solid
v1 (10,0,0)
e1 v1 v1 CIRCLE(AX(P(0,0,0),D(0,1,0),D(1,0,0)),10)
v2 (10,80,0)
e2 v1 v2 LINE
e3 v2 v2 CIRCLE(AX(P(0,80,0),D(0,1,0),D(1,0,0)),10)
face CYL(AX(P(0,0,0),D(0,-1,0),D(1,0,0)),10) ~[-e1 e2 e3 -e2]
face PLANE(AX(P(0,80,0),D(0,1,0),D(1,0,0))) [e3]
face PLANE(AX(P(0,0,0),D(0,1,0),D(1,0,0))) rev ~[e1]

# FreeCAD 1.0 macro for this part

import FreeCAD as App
import Part
import Sketcher

doc = App.newDocument("Part")
body = doc.addObject("PartDesign::Body", "Body")

sketch1 = body.newObject("Sketcher::SketchObject", "Sketch")
sketch1.AttachmentSupport = (doc.getObject("XZ_Plane"), [""])
sketch1.MapMode = "FlatFace"
sketch1.addGeometry(Part.Circle(App.Vector(0, 0, 0), App.Vector(0, 0, 1), 10), False)
sketch1.addConstraint([
    Sketcher.Constraint("Coincident", 0, 3, -1, 1),
    Sketcher.Constraint("Diameter", 0, 20.0),
])
pad1 = body.newObject("PartDesign::Pad", "Pad")
pad1.Profile = sketch1
pad1.Length = 80
pad1.Reversed = True

doc.recompute()
